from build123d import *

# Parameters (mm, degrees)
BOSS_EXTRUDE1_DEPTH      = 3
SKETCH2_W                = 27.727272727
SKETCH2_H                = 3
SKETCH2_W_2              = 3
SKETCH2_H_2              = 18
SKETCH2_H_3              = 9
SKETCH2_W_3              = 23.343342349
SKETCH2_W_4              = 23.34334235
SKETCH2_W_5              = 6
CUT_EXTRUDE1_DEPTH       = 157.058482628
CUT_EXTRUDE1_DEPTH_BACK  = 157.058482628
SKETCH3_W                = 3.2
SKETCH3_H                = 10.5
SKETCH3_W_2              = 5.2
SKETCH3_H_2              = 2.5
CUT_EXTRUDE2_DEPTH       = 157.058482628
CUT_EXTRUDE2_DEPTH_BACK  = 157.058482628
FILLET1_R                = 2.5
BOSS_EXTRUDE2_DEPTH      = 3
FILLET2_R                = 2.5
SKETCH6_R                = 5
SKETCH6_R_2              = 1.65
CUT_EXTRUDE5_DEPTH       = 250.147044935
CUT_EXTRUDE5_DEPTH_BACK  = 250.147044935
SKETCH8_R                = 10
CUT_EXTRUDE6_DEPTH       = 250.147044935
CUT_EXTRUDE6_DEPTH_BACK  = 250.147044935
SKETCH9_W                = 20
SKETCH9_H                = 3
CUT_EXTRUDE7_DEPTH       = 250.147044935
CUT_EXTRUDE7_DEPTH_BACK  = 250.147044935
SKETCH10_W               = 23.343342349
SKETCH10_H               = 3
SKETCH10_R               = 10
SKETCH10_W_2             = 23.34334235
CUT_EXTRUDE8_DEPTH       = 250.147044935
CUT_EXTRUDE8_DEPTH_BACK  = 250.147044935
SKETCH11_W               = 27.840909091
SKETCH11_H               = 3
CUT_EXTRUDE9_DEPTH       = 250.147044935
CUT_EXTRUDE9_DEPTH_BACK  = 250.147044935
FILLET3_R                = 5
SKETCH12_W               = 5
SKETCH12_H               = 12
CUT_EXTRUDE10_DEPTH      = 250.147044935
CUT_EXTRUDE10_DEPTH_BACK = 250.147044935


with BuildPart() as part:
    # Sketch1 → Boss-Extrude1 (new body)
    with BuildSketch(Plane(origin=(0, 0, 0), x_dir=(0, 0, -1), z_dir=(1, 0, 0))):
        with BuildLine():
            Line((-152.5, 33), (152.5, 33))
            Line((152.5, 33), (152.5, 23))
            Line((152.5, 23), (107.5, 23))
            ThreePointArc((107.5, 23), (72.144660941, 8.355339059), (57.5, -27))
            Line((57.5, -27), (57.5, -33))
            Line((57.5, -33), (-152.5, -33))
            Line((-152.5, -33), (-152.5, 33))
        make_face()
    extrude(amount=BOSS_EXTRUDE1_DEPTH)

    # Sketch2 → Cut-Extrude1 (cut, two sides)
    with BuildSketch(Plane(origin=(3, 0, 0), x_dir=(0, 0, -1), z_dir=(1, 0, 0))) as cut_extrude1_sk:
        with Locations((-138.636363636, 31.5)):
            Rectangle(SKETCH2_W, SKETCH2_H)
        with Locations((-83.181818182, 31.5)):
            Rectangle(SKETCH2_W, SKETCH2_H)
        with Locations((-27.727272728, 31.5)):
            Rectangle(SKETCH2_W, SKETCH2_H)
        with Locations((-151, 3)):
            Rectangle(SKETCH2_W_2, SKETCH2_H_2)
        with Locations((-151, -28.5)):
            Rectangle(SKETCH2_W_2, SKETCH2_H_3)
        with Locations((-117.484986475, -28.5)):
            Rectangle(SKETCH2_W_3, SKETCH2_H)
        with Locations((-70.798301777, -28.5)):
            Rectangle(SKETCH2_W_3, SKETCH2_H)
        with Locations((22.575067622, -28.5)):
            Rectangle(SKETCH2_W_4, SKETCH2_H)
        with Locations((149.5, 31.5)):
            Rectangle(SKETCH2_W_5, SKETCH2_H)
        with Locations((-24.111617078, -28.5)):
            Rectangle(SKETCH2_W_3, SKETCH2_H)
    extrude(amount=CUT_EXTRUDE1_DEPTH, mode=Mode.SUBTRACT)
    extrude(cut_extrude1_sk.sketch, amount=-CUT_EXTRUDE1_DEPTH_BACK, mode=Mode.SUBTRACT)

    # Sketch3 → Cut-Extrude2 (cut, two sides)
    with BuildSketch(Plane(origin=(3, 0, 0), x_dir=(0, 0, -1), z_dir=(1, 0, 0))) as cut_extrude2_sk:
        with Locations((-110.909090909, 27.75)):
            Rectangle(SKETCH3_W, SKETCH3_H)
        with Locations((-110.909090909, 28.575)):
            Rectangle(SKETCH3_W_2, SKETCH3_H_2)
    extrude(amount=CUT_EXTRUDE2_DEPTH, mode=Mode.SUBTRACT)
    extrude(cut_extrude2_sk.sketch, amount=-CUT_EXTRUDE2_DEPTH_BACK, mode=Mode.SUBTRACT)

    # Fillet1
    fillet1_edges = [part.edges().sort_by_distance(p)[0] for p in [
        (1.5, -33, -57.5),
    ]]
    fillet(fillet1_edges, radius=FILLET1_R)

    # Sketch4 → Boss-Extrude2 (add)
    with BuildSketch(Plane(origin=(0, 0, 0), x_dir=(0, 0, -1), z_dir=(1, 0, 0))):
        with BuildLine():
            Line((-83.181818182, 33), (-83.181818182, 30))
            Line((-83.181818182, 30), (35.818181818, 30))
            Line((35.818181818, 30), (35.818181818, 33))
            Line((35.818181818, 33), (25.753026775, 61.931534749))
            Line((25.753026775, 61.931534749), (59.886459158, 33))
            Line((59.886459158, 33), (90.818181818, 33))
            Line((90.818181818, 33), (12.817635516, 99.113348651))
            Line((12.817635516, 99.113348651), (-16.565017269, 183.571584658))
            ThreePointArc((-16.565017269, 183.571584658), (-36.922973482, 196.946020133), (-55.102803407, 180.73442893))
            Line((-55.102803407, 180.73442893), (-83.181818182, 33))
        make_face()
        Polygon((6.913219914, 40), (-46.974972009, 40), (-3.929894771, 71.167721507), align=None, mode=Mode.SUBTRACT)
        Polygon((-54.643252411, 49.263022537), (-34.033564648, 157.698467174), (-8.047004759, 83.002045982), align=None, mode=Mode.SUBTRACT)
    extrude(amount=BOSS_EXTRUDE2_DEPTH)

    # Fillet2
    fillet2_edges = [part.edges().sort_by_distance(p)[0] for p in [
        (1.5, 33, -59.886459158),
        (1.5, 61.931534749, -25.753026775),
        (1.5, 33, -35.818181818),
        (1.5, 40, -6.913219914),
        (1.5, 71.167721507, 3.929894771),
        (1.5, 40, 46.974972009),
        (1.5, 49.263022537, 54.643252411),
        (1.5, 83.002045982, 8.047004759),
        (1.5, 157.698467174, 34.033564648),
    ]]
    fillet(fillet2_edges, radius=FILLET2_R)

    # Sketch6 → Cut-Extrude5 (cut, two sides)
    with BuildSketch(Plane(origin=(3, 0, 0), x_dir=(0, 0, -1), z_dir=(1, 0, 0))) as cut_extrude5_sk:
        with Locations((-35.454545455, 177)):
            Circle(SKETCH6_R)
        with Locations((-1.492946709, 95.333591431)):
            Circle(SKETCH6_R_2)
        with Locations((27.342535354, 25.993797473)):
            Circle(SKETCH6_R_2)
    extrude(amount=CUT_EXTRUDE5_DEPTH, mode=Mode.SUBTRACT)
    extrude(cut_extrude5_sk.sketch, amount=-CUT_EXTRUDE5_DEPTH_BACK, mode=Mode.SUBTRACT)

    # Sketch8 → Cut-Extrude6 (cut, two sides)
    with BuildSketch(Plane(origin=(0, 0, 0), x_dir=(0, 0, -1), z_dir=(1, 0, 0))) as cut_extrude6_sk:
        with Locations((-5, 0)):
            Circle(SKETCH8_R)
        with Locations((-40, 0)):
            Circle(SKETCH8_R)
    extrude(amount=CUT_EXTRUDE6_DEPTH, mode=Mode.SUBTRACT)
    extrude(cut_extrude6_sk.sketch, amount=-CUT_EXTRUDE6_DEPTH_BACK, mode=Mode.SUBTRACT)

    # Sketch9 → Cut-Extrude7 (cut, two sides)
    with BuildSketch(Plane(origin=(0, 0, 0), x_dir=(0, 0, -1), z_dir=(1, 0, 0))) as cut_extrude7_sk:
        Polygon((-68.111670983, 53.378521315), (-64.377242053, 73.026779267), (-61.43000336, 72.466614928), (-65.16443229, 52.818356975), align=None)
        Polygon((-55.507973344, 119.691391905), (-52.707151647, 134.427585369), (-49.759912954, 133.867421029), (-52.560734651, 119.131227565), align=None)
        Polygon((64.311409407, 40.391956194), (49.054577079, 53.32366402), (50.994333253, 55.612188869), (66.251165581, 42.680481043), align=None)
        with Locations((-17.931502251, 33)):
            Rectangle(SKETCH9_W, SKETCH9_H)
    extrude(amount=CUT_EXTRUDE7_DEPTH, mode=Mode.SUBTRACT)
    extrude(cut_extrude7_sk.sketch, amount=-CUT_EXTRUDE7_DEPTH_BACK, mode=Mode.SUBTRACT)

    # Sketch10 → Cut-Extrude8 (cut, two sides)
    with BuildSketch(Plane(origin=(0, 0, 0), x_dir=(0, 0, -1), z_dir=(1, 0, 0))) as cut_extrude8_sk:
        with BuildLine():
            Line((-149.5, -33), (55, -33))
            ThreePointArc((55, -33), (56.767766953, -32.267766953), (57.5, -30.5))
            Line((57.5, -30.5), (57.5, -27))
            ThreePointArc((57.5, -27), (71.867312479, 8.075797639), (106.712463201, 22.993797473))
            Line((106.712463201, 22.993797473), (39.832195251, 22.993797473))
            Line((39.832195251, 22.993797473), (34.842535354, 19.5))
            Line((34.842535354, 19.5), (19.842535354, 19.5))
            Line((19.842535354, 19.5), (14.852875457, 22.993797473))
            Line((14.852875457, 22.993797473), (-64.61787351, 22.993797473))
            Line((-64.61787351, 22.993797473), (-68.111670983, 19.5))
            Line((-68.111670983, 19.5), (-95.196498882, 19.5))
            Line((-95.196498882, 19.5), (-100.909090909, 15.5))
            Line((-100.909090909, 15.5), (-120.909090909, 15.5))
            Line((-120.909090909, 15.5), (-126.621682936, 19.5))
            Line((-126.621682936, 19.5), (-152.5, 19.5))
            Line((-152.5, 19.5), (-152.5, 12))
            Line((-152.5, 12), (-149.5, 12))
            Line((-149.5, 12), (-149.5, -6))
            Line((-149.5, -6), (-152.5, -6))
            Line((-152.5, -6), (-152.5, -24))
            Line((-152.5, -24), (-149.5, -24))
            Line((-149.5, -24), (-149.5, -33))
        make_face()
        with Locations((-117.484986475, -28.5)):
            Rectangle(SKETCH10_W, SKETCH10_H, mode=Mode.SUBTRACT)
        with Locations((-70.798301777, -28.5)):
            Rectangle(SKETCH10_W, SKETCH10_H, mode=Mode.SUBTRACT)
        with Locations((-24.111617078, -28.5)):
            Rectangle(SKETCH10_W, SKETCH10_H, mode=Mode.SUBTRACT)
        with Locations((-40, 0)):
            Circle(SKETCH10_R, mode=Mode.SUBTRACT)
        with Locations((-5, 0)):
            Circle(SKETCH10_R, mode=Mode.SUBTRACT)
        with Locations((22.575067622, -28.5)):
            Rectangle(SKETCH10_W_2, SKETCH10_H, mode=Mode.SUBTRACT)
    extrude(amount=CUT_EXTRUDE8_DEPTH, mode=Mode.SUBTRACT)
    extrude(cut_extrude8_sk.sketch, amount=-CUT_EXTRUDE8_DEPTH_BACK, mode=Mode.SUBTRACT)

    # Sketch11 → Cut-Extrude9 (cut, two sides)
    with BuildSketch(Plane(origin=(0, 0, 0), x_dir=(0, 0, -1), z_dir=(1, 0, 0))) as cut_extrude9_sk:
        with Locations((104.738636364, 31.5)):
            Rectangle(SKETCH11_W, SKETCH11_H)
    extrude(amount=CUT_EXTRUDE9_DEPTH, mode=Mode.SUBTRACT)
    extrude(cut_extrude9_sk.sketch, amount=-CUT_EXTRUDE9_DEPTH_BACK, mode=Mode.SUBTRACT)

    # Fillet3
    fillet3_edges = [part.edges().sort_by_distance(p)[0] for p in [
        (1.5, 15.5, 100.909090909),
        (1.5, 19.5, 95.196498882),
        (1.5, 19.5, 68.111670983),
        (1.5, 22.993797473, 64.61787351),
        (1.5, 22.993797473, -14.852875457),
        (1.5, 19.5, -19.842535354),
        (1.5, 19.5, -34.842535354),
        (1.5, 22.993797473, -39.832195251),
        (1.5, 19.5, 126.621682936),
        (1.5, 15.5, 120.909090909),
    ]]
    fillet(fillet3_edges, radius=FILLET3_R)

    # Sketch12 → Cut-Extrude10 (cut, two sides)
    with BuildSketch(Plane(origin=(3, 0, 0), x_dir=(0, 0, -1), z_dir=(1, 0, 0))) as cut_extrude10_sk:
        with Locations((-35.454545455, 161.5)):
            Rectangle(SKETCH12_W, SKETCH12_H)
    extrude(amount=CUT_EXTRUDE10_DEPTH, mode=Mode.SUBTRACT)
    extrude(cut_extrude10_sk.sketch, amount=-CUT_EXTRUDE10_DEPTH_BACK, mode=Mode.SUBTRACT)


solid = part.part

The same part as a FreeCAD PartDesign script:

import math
import FreeCAD as App
import Part
import Sketcher
from FreeCAD import Vector
Q = App.Units.Quantity


def edges_at(feature, points):
    """Names of the edges that pass closest to the given points."""
    edges = feature.Shape.Edges
    near = lambda p: min(range(len(edges)), key=lambda i: edges[i].distToShape(Part.Vertex(*p))[0])
    return sorted({f"Edge{near(p) + 1}" for p in points})

doc = App.newDocument("Part")
params = doc.addObject("Spreadsheet::Sheet", "Params")
for row, (alias, value) in enumerate([
    ("sketch1_radius", "50 mm"),
    ("sketch1_width", "66 mm"),
    ("sketch1_width2", "6 mm"),
    ("sketch1_height", "305 mm"),
    ("sketch1_height2", "210 mm"),
    ("pad1_length", "3 mm"),
    ("sketch2_width", "3 mm"),
    ("sketch2_width2", "18 mm"),
    ("sketch2_width3", "9 mm"),
    ("sketch2_height", "6 mm"),
    ("sketch3_height", "1 mm"),
    ("sketch3_width", "2.5 mm"),
    ("sketch3_height2", "3.2 mm"),
    ("fillet_radius", "2.5 mm"),
    ("sketch4_radius", "20 mm"),
    ("sketch4_width", "3 mm"),
    ("sketch4_height", "119 mm"),
    ("sketch4_length", "33 mm"),
    ("pad2_length", "3 mm"),
    ("fillet2_radius", "2.5 mm"),
    ("sketch5_diameter", "10 mm"),
    ("sketch5_diameter2", "3.3 mm"),
    ("sketch6_diameter", "20 mm"),
    ("sketch7_width", "3 mm"),
    ("sketch7_height", "20 mm"),
    ("sketch7_length", "20 mm"),
    ("sketch7_length2", "3 mm"),
    ("sketch7_length3", "15 mm"),
    ("sketch8_diameter", "20 mm"),
    ("sketch8_radius", "50 mm"),
    ("sketch8_radius2", "2.5 mm"),
    ("sketch8_width", "18 mm"),
    ("sketch8_width2", "9 mm"),
    ("sketch9_width", "3 mm"),
    ("fillet3_radius", "5 mm"),
    ("sketch10_width", "12 mm"),
    ("sketch10_height", "5 mm"),
], start=1):
    params.set(f"A{row}", alias)
    params.set(f"B{row}", "=" + value)
    params.setAlias(f"B{row}", alias)

body = doc.addObject("PartDesign::Body", "Body")

sketch1 = body.newObject("Sketcher::SketchObject", "Sketch")
sketch1.AttachmentSupport = (doc.getObject("YZ_Plane"), [""])
sketch1.MapMode = "FlatFace"
sketch1.addGeometry([
    Part.LineSegment(Vector(33, -152.5, 0), Vector(33, 152.5, 0)),
    Part.LineSegment(Vector(33, 152.5, 0), Vector(-33, 152.5, 0)),
    Part.LineSegment(Vector(-33, 152.5, 0), Vector(-33, -57.5, 0)),
    Part.LineSegment(Vector(-33, -57.5, 0), Vector(-27, -57.5, 0)),
    Part.ArcOfCircle(Part.Circle(Vector(-27, -107.5, 0), Vector(0, 0, 1), 50), math.radians(0), math.radians(90)),
    Part.LineSegment(Vector(23, -107.5, 0), Vector(23, -152.5, 0)),
    Part.LineSegment(Vector(23, -152.5, 0), Vector(33, -152.5, 0)),
], False)
sketch1.addConstraint([
    Sketcher.Constraint("Coincident", 0, 2, 1, 1),
    Sketcher.Constraint("Coincident", 1, 2, 2, 1),
    Sketcher.Constraint("Coincident", 2, 2, 3, 1),
    Sketcher.Constraint("Tangent", 3, 2, 4, 2),
    Sketcher.Constraint("Tangent", 4, 1, 5, 1),
    Sketcher.Constraint("Coincident", 5, 2, 6, 1),
    Sketcher.Constraint("Coincident", 6, 2, 0, 1),
    Sketcher.Constraint("Vertical", 0),
    Sketcher.Constraint("Horizontal", 1),
    Sketcher.Constraint("Vertical", 2),
    Sketcher.Constraint("Horizontal", 3),
    Sketcher.Constraint("Vertical", 5),
    Sketcher.Constraint("Horizontal", 6),
    Sketcher.Constraint("Symmetric", 1, 2, 6, 2, -1, 1),
    Sketcher.Constraint("Radius", 4, 50.0),
    Sketcher.Constraint("DistanceX", 1, 2, 1, 1, 66.0),
    Sketcher.Constraint("DistanceX", 3, 1, 3, 2, 6.0),
    Sketcher.Constraint("DistanceY", 0, 1, 0, 2, 305.0),
    Sketcher.Constraint("DistanceY", 2, 2, 2, 1, 210.0),
])
sketch1.setExpression("Constraints[14]", "Params.sketch1_radius")
sketch1.setExpression("Constraints[15]", "Params.sketch1_width")
sketch1.setExpression("Constraints[16]", "Params.sketch1_width2")
sketch1.setExpression("Constraints[17]", "Params.sketch1_height")
sketch1.setExpression("Constraints[18]", "Params.sketch1_height2")
pad1 = body.newObject("PartDesign::Pad", "Pad")
pad1.Profile = sketch1
pad1.setExpression("Length", "Params.pad1_length")

sketch2 = body.newObject("Sketcher::SketchObject", "Sketch001")
sketch2.AttachmentSupport = (doc.getObject("YZ_Plane"), [""])
sketch2.MapMode = "FlatFace"
sketch2.AttachmentOffset = App.Placement(Vector(0, 0, 3), App.Rotation())
sketch2.addGeometry([
    Part.LineSegment(Vector(33, 152.5, 0), Vector(30, 152.5, 0)),
    Part.LineSegment(Vector(30, 152.5, 0), Vector(30, 124.772727, 0)),
    Part.LineSegment(Vector(30, 124.772727, 0), Vector(33, 124.772727, 0)),
    Part.LineSegment(Vector(33, 124.772727, 0), Vector(33, 152.5, 0)),
    Part.LineSegment(Vector(33, 97.045455, 0), Vector(30, 97.045455, 0)),
    Part.LineSegment(Vector(30, 97.045455, 0), Vector(30, 69.318182, 0)),
    Part.LineSegment(Vector(30, 69.318182, 0), Vector(33, 69.318182, 0)),
    Part.LineSegment(Vector(33, 69.318182, 0), Vector(33, 97.045455, 0)),
    Part.LineSegment(Vector(33, 41.590909, 0), Vector(30, 41.590909, 0)),
    Part.LineSegment(Vector(30, 41.590909, 0), Vector(30, 13.863636, 0)),
    Part.LineSegment(Vector(30, 13.863636, 0), Vector(33, 13.863636, 0)),
    Part.LineSegment(Vector(33, 13.863636, 0), Vector(33, 41.590909, 0)),
    Part.LineSegment(Vector(12, 152.5, 0), Vector(-6, 152.5, 0)),
    Part.LineSegment(Vector(-6, 152.5, 0), Vector(-6, 149.5, 0)),
    Part.LineSegment(Vector(-6, 149.5, 0), Vector(12, 149.5, 0)),
    Part.LineSegment(Vector(12, 149.5, 0), Vector(12, 152.5, 0)),
    Part.LineSegment(Vector(-24, 152.5, 0), Vector(-33, 152.5, 0)),
    Part.LineSegment(Vector(-33, 152.5, 0), Vector(-33, 149.5, 0)),
    Part.LineSegment(Vector(-33, 149.5, 0), Vector(-24, 149.5, 0)),
    Part.LineSegment(Vector(-24, 149.5, 0), Vector(-24, 152.5, 0)),
    Part.LineSegment(Vector(-27, 129.156658, 0), Vector(-30, 129.156658, 0)),
    Part.LineSegment(Vector(-30, 129.156658, 0), Vector(-30, 105.813315, 0)),
    Part.LineSegment(Vector(-30, 105.813315, 0), Vector(-27, 105.813315, 0)),
    Part.LineSegment(Vector(-27, 105.813315, 0), Vector(-27, 129.156658, 0)),
    Part.LineSegment(Vector(-27, 82.469973, 0), Vector(-30, 82.469973, 0)),
    Part.LineSegment(Vector(-30, 82.469973, 0), Vector(-30, 59.126631, 0)),
    Part.LineSegment(Vector(-30, 59.126631, 0), Vector(-27, 59.126631, 0)),
    Part.LineSegment(Vector(-27, 59.126631, 0), Vector(-27, 82.469973, 0)),
    Part.LineSegment(Vector(-27, -10.903396, 0), Vector(-30, -10.903396, 0)),
    Part.LineSegment(Vector(-30, -10.903396, 0), Vector(-30, -34.246739, 0)),
    Part.LineSegment(Vector(-30, -34.246739, 0), Vector(-27, -34.246739, 0)),
    Part.LineSegment(Vector(-27, -34.246739, 0), Vector(-27, -10.903396, 0)),
    Part.LineSegment(Vector(33, -146.5, 0), Vector(30, -146.5, 0)),
    Part.LineSegment(Vector(30, -146.5, 0), Vector(30, -152.5, 0)),
    Part.LineSegment(Vector(30, -152.5, 0), Vector(33, -152.5, 0)),
    Part.LineSegment(Vector(33, -152.5, 0), Vector(33, -146.5, 0)),
    Part.LineSegment(Vector(-27, 35.783288, 0), Vector(-30, 35.783288, 0)),
    Part.LineSegment(Vector(-30, 35.783288, 0), Vector(-30, 12.439946, 0)),
    Part.LineSegment(Vector(-30, 12.439946, 0), Vector(-27, 12.439946, 0)),
    Part.LineSegment(Vector(-27, 12.439946, 0), Vector(-27, 35.783288, 0)),
], False)
sketch2.addConstraint([
    Sketcher.Constraint("Coincident", 0, 2, 1, 1),
    Sketcher.Constraint("Coincident", 1, 2, 2, 1),
    Sketcher.Constraint("Coincident", 2, 2, 3, 1),
    Sketcher.Constraint("Coincident", 3, 2, 0, 1),
    Sketcher.Constraint("Coincident", 4, 2, 5, 1),
    Sketcher.Constraint("Coincident", 5, 2, 6, 1),
    Sketcher.Constraint("Coincident", 6, 2, 7, 1),
    Sketcher.Constraint("Coincident", 7, 2, 4, 1),
    Sketcher.Constraint("Coincident", 8, 2, 9, 1),
    Sketcher.Constraint("Coincident", 9, 2, 10, 1),
    Sketcher.Constraint("Coincident", 10, 2, 11, 1),
    Sketcher.Constraint("Coincident", 11, 2, 8, 1),
    Sketcher.Constraint("Coincident", 12, 2, 13, 1),
    Sketcher.Constraint("Coincident", 13, 2, 14, 1),
    Sketcher.Constraint("Coincident", 14, 2, 15, 1),
    Sketcher.Constraint("Coincident", 15, 2, 12, 1),
    Sketcher.Constraint("Coincident", 16, 2, 17, 1),
    Sketcher.Constraint("Coincident", 17, 2, 18, 1),
    Sketcher.Constraint("Coincident", 18, 2, 19, 1),
    Sketcher.Constraint("Coincident", 19, 2, 16, 1),
    Sketcher.Constraint("Coincident", 20, 2, 21, 1),
    Sketcher.Constraint("Coincident", 21, 2, 22, 1),
    Sketcher.Constraint("Coincident", 22, 2, 23, 1),
    Sketcher.Constraint("Coincident", 23, 2, 20, 1),
    Sketcher.Constraint("Coincident", 24, 2, 25, 1),
    Sketcher.Constraint("Coincident", 25, 2, 26, 1),
    Sketcher.Constraint("Coincident", 26, 2, 27, 1),
    Sketcher.Constraint("Coincident", 27, 2, 24, 1),
    Sketcher.Constraint("Coincident", 28, 2, 29, 1),
    Sketcher.Constraint("Coincident", 29, 2, 30, 1),
    Sketcher.Constraint("Coincident", 30, 2, 31, 1),
    Sketcher.Constraint("Coincident", 31, 2, 28, 1),
    Sketcher.Constraint("Coincident", 32, 2, 33, 1),
    Sketcher.Constraint("Coincident", 33, 2, 34, 1),
    Sketcher.Constraint("Coincident", 34, 2, 35, 1),
    Sketcher.Constraint("Coincident", 35, 2, 32, 1),
    Sketcher.Constraint("Coincident", 36, 2, 37, 1),
    Sketcher.Constraint("Coincident", 37, 2, 38, 1),
    Sketcher.Constraint("Coincident", 38, 2, 39, 1),
    Sketcher.Constraint("Coincident", 39, 2, 36, 1),
    Sketcher.Constraint("Horizontal", 0),
    Sketcher.Constraint("Vertical", 1),
    Sketcher.Constraint("Horizontal", 2),
    Sketcher.Constraint("Vertical", 3),
    Sketcher.Constraint("Horizontal", 4),
    Sketcher.Constraint("Vertical", 5),
    Sketcher.Constraint("Horizontal", 6),
    Sketcher.Constraint("Vertical", 7),
    Sketcher.Constraint("Horizontal", 8),
    Sketcher.Constraint("Vertical", 9),
    Sketcher.Constraint("Horizontal", 10),
    Sketcher.Constraint("Vertical", 11),
    Sketcher.Constraint("Horizontal", 12),
    Sketcher.Constraint("Vertical", 13),
    Sketcher.Constraint("Horizontal", 14),
    Sketcher.Constraint("Vertical", 15),
    Sketcher.Constraint("Horizontal", 16),
    Sketcher.Constraint("Vertical", 17),
    Sketcher.Constraint("Horizontal", 18),
    Sketcher.Constraint("Vertical", 19),
    Sketcher.Constraint("Horizontal", 20),
    Sketcher.Constraint("Vertical", 21),
    Sketcher.Constraint("Horizontal", 22),
    Sketcher.Constraint("Vertical", 23),
    Sketcher.Constraint("Horizontal", 24),
    Sketcher.Constraint("Vertical", 25),
    Sketcher.Constraint("Horizontal", 26),
    Sketcher.Constraint("Vertical", 27),
    Sketcher.Constraint("Horizontal", 28),
    Sketcher.Constraint("Vertical", 29),
    Sketcher.Constraint("Horizontal", 30),
    Sketcher.Constraint("Vertical", 31),
    Sketcher.Constraint("Horizontal", 32),
    Sketcher.Constraint("Vertical", 33),
    Sketcher.Constraint("Horizontal", 34),
    Sketcher.Constraint("Vertical", 35),
    Sketcher.Constraint("Horizontal", 36),
    Sketcher.Constraint("Vertical", 37),
    Sketcher.Constraint("Horizontal", 38),
    Sketcher.Constraint("Vertical", 39),
    Sketcher.Constraint("Symmetric", 16, 2, 34, 2, -1, 1),
    Sketcher.Constraint("Symmetric", 3, 2, 16, 2, -2),
    Sketcher.Constraint("Horizontal", 3, 2, 12, 2),
    Sketcher.Constraint("Horizontal", 14, 2, 17, 2),
    Sketcher.Constraint("Vertical", 1, 2, 4, 2),
    Sketcher.Constraint("Vertical", 3, 2, 6, 2),
    Sketcher.Constraint("Vertical", 5, 2, 8, 2),
    Sketcher.Constraint("Vertical", 7, 2, 10, 2),
    Sketcher.Constraint("Vertical", 21, 2, 24, 2),
    Sketcher.Constraint("Vertical", 23, 2, 26, 2),
    Sketcher.Constraint("Vertical", 25, 2, 28, 2),
    Sketcher.Constraint("Vertical", 27, 2, 30, 2),
    Sketcher.Constraint("Vertical", 9, 2, 32, 2),
    Sketcher.Constraint("Vertical", 29, 2, 36, 2),
    Sketcher.Constraint("Vertical", 31, 2, 38, 2),
    Sketcher.Constraint("Equal", 10, 20),
    Sketcher.Constraint("Equal", 3, 5),
    Sketcher.Constraint("Equal", 7, 9),
    Sketcher.Constraint("Equal", 38, 13),
    Sketcher.Constraint("Equal", 23, 25),
    Sketcher.Constraint("Equal", 27, 29),
    Sketcher.Constraint("Equal", 31, 37),
    Sketcher.Constraint("DistanceX", 0, 2, 0, 1, 3.0),
    Sketcher.Constraint("DistanceX", 12, 2, 12, 1, 18.0),
    Sketcher.Constraint("DistanceX", 16, 2, 16, 1, 9.0),
    Sketcher.Constraint("DistanceY", 33, 2, 33, 1, 6.0),
    Sketcher.Constraint("DistanceX", -1, 1, 0, 2, 30.0),
    Sketcher.Constraint("DistanceX", 12, 2, -1, 1, 6.0),
    Sketcher.Constraint("DistanceX", 20, 2, -1, 1, 30.0),
    Sketcher.Constraint("DistanceY", -1, 1, 0, 2, 152.5),
    Sketcher.Constraint("DistanceY", 1, 2, 1, 1, 27.727273),
    Sketcher.Constraint("DistanceY", 21, 2, 21, 1, 23.343342),
    Sketcher.Constraint("DistanceY", -1, 1, 5, 2, 69.318182),
    Sketcher.Constraint("DistanceY", -1, 1, 8, 2, 41.590909),
    Sketcher.Constraint("DistanceY", -1, 1, 25, 2, 59.126631),
    Sketcher.Constraint("DistanceY", 29, 2, -1, 1, 34.246739),
    Sketcher.Constraint("DistanceY", -1, 1, 36, 2, 35.783288),
    Sketcher.Constraint("DistanceY", -1, 1, 20, 2, 129.156658),
])
sketch2.setExpression("Constraints[102]", "Params.sketch2_width")
sketch2.setExpression("Constraints[103]", "Params.sketch2_width2")
sketch2.setExpression("Constraints[104]", "Params.sketch2_width3")
sketch2.setExpression("Constraints[105]", "Params.sketch2_height")
pocket1 = body.newObject("PartDesign::Pocket", "Pocket")
pocket1.Profile = sketch2
pocket1.Type = "ThroughAll"
pocket1.Midplane = True

sketch3 = body.newObject("Sketcher::SketchObject", "Sketch002")
sketch3.AttachmentSupport = (doc.getObject("YZ_Plane"), [""])
sketch3.MapMode = "FlatFace"
sketch3.AttachmentOffset = App.Placement(Vector(0, 0, 3), App.Rotation())
sketch3.addGeometry([
    Part.LineSegment(Vector(27.325, 112.509091, 0), Vector(22.5, 112.509091, 0)),
    Part.LineSegment(Vector(22.5, 112.509091, 0), Vector(22.5, 109.309091, 0)),
    Part.LineSegment(Vector(22.5, 109.309091, 0), Vector(27.325, 109.309091, 0)),
    Part.LineSegment(Vector(27.325, 109.309091, 0), Vector(27.325, 108.309091, 0)),
    Part.LineSegment(Vector(27.325, 108.309091, 0), Vector(29.825, 108.309091, 0)),
    Part.LineSegment(Vector(29.825, 108.309091, 0), Vector(29.825, 109.309091, 0)),
    Part.LineSegment(Vector(29.825, 109.309091, 0), Vector(33, 109.309091, 0)),
    Part.LineSegment(Vector(33, 109.309091, 0), Vector(33, 112.509091, 0)),
    Part.LineSegment(Vector(33, 112.509091, 0), Vector(29.825, 112.509091, 0)),
    Part.LineSegment(Vector(29.825, 112.509091, 0), Vector(29.825, 113.509091, 0)),
    Part.LineSegment(Vector(29.825, 113.509091, 0), Vector(27.325, 113.509091, 0)),
    Part.LineSegment(Vector(27.325, 113.509091, 0), Vector(27.325, 112.509091, 0)),
], False)
sketch3.addConstraint([
    Sketcher.Constraint("Coincident", 0, 2, 1, 1),
    Sketcher.Constraint("Coincident", 1, 2, 2, 1),
    Sketcher.Constraint("Coincident", 2, 2, 3, 1),
    Sketcher.Constraint("Coincident", 3, 2, 4, 1),
    Sketcher.Constraint("Coincident", 4, 2, 5, 1),
    Sketcher.Constraint("Coincident", 5, 2, 6, 1),
    Sketcher.Constraint("Coincident", 6, 2, 7, 1),
    Sketcher.Constraint("Coincident", 7, 2, 8, 1),
    Sketcher.Constraint("Coincident", 8, 2, 9, 1),
    Sketcher.Constraint("Coincident", 9, 2, 10, 1),
    Sketcher.Constraint("Coincident", 10, 2, 11, 1),
    Sketcher.Constraint("Coincident", 11, 2, 0, 1),
    Sketcher.Constraint("Horizontal", 0),
    Sketcher.Constraint("Vertical", 1),
    Sketcher.Constraint("Horizontal", 2),
    Sketcher.Constraint("Vertical", 3),
    Sketcher.Constraint("Horizontal", 4),
    Sketcher.Constraint("Vertical", 5),
    Sketcher.Constraint("Horizontal", 6),
    Sketcher.Constraint("Vertical", 7),
    Sketcher.Constraint("Horizontal", 8),
    Sketcher.Constraint("Vertical", 9),
    Sketcher.Constraint("Horizontal", 10),
    Sketcher.Constraint("Vertical", 11),
    Sketcher.Constraint("Horizontal", 2, 2, 5, 2),
    Sketcher.Constraint("Horizontal", 0, 2, 7, 2),
    Sketcher.Constraint("Vertical", 5, 2, 8, 2),
    Sketcher.Constraint("Vertical", 3, 2, 10, 2),
    Sketcher.Constraint("Equal", 5, 9),
    Sketcher.Constraint("DistanceY", 3, 2, 3, 1, 1.0),
    Sketcher.Constraint("DistanceX", 4, 1, 4, 2, 2.5),
    Sketcher.Constraint("DistanceY", 1, 2, 1, 1, 3.2),
    Sketcher.Constraint("DistanceX", -1, 1, 6, 2, 33.0),
    Sketcher.Constraint("DistanceX", -1, 1, 0, 2, 22.5),
    Sketcher.Constraint("DistanceX", 0, 2, 0, 1, 4.825),
    Sketcher.Constraint("DistanceY", -1, 1, 0, 2, 112.509091),
])
sketch3.setExpression("Constraints[29]", "Params.sketch3_height")
sketch3.setExpression("Constraints[30]", "Params.sketch3_width")
sketch3.setExpression("Constraints[31]", "Params.sketch3_height2")
pocket2 = body.newObject("PartDesign::Pocket", "Pocket001")
pocket2.Profile = sketch3
pocket2.Type = "ThroughAll"
pocket2.Midplane = True
doc.recompute()

fillet = body.newObject("PartDesign::Fillet", "Fillet")
fillet.Base = (pocket2, edges_at(pocket2, [(1.5, -33, -57.5)]))
fillet.setExpression("Radius", "Params.fillet_radius")

sketch4 = body.newObject("Sketcher::SketchObject", "Sketch003")
sketch4.AttachmentSupport = (doc.getObject("YZ_Plane"), [""])
sketch4.MapMode = "FlatFace"
sketch4.addGeometry([
    Part.LineSegment(Vector(33, 83.181818, 0), Vector(30, 83.181818, 0)),
    Part.LineSegment(Vector(30, 83.181818, 0), Vector(30, -35.818182, 0)),
    Part.LineSegment(Vector(30, -35.818182, 0), Vector(33, -35.818182, 0)),
    Part.LineSegment(Vector(33, -35.818182, 0), Vector(61.931535, -25.753027, 0)),
    Part.LineSegment(Vector(61.931535, -25.753027, 0), Vector(33, -59.886459, 0)),
    Part.LineSegment(Vector(33, -59.886459, 0), Vector(33, -90.818182, 0)),
    Part.LineSegment(Vector(33, -90.818182, 0), Vector(99.113349, -12.817636, 0)),
    Part.LineSegment(Vector(99.113349, -12.817636, 0), Vector(183.571585, 16.565017, 0)),
    Part.ArcOfCircle(Part.Circle(Vector(177, 35.454545, 0), Vector(0, 0, 1), 20), math.radians(-70.817437), math.radians(79.238487)),
    Part.LineSegment(Vector(180.734429, 55.102803, 0), Vector(33, 83.181818, 0)),
    Part.LineSegment(Vector(71.167722, 3.929895, 0), Vector(40, -6.91322, 0)),
    Part.LineSegment(Vector(40, -6.91322, 0), Vector(40, 46.974972, 0)),
    Part.LineSegment(Vector(40, 46.974972, 0), Vector(71.167722, 3.929895, 0)),
    Part.LineSegment(Vector(83.002046, 8.047005, 0), Vector(49.263023, 54.643252, 0)),
    Part.LineSegment(Vector(49.263023, 54.643252, 0), Vector(157.698467, 34.033565, 0)),
    Part.LineSegment(Vector(157.698467, 34.033565, 0), Vector(83.002046, 8.047005, 0)),
], False)
sketch4.addConstraint([
    Sketcher.Constraint("Coincident", 0, 2, 1, 1),
    Sketcher.Constraint("Coincident", 1, 2, 2, 1),
    Sketcher.Constraint("Coincident", 2, 2, 3, 1),
    Sketcher.Constraint("Coincident", 3, 2, 4, 1),
    Sketcher.Constraint("Coincident", 4, 2, 5, 1),
    Sketcher.Constraint("Coincident", 5, 2, 6, 1),
    Sketcher.Constraint("Coincident", 6, 2, 7, 1),
    Sketcher.Constraint("Tangent", 7, 2, 8, 1),
    Sketcher.Constraint("Tangent", 8, 2, 9, 1),
    Sketcher.Constraint("Coincident", 9, 2, 0, 1),
    Sketcher.Constraint("Coincident", 10, 2, 11, 1),
    Sketcher.Constraint("Coincident", 11, 2, 12, 1),
    Sketcher.Constraint("Coincident", 12, 2, 10, 1),
    Sketcher.Constraint("Coincident", 13, 2, 14, 1),
    Sketcher.Constraint("Coincident", 14, 2, 15, 1),
    Sketcher.Constraint("Coincident", 15, 2, 13, 1),
    Sketcher.Constraint("Horizontal", 0),
    Sketcher.Constraint("Vertical", 1),
    Sketcher.Constraint("Horizontal", 2),
    Sketcher.Constraint("Vertical", 5),
    Sketcher.Constraint("Vertical", 11),
    Sketcher.Constraint("Parallel", 4, 6),
    Sketcher.Constraint("Parallel", 3, 7),
    Sketcher.Constraint("Parallel", 7, 10),
    Sketcher.Constraint("Parallel", 12, 13),
    Sketcher.Constraint("Parallel", 9, 14),
    Sketcher.Constraint("Parallel", 10, 15),
    Sketcher.Constraint("Vertical", 2, 2, 4, 2),
    Sketcher.Constraint("Vertical", 5, 2, 9, 2),
    Sketcher.Constraint("Radius", 8, 20.0),
    Sketcher.Constraint("DistanceX", 0, 2, 0, 1, 3.0),
    Sketcher.Constraint("DistanceY", 1, 2, 1, 1, 119.0),
    Sketcher.Constraint("Distance", 10, 33.0),
    Sketcher.Constraint("DistanceX", -1, 1, 8, 3, 177.0),
    Sketcher.Constraint("DistanceX", -1, 1, 0, 2, 30.0),
    Sketcher.Constraint("DistanceX", -1, 1, 10, 2, 40.0),
    Sketcher.Constraint("DistanceY", 5, 2, 2, 2, 55.0),
    Sketcher.Constraint("DistanceY", 3, 2, 11, 2, 72.727999),
    Sketcher.Constraint("DistanceY", 11, 1, 11, 2, 53.888192),
    Sketcher.Constraint("DistanceY", 2, 2, 7, 2, 52.383199),
    Sketcher.Constraint("DistanceX", 13, 2, 12, 2, 21.904699),
    Sketcher.Constraint("DistanceY", 6, 2, 14, 2, 46.8512),
    Sketcher.Constraint("Distance", 4, 44.74511),
    Sketcher.Constraint("Distance", 6, 102.249988),
    Sketcher.Constraint("Distance", 7, 89.423341),
    Sketcher.Constraint("Distance", 14, 110.37665),
    Sketcher.Constraint("DistanceY", -1, 1, 0, 2, 83.181818),
])
sketch4.setExpression("Constraints[29]", "Params.sketch4_radius")
sketch4.setExpression("Constraints[30]", "Params.sketch4_width")
sketch4.setExpression("Constraints[31]", "Params.sketch4_height")
sketch4.setExpression("Constraints[32]", "Params.sketch4_length")
pad2 = body.newObject("PartDesign::Pad", "Pad001")
pad2.Profile = sketch4
pad2.setExpression("Length", "Params.pad2_length")
doc.recompute()

fillet2 = body.newObject("PartDesign::Fillet", "Fillet001")
fillet2.Base = (pad2, edges_at(pad2, [
    (1.5, 33, -59.886),
    (1.5, 61.932, -25.753),
    (1.5, 33, -35.818),
    (1.5, 40, -6.913),
    (1.5, 71.168, 3.93),
    (1.5, 40, 46.975),
    (1.5, 49.263, 54.643),
    (1.5, 83.002, 8.047),
    (1.5, 157.698, 34.034),
]))
fillet2.setExpression("Radius", "Params.fillet2_radius")

sketch5 = body.newObject("Sketcher::SketchObject", "Sketch004")
sketch5.AttachmentSupport = (doc.getObject("YZ_Plane"), [""])
sketch5.MapMode = "FlatFace"
sketch5.AttachmentOffset = App.Placement(Vector(0, 0, 3), App.Rotation())
sketch5.addGeometry([
    Part.Circle(Vector(177, 35.454545, 0), Vector(0, 0, 1), 5),
    Part.Circle(Vector(95.333591, 1.492947, 0), Vector(0, 0, 1), 1.65),
    Part.Circle(Vector(25.993797, -27.342535, 0), Vector(0, 0, 1), 1.65),
], False)
sketch5.addConstraint([
    Sketcher.Constraint("Equal", 1, 2),
    Sketcher.Constraint("Diameter", 0, 10.0),
    Sketcher.Constraint("Diameter", 1, 3.3),
    Sketcher.Constraint("DistanceX", -1, 1, 0, 3, 177.0),
    Sketcher.Constraint("DistanceY", 1, 3, 0, 3, 33.961599),
    Sketcher.Constraint("DistanceX", -1, 1, 1, 3, 95.333591),
    Sketcher.Constraint("DistanceY", 2, 3, 0, 3, 62.797081),
    Sketcher.Constraint("DistanceY", -1, 1, 0, 3, 35.454545),
    Sketcher.Constraint("DistanceX", -1, 1, 2, 3, 25.993797),
])
sketch5.setExpression("Constraints[1]", "Params.sketch5_diameter")
sketch5.setExpression("Constraints[2]", "Params.sketch5_diameter2")
pocket3 = body.newObject("PartDesign::Pocket", "Pocket002")
pocket3.Profile = sketch5
pocket3.Type = "ThroughAll"
pocket3.Midplane = True

sketch6 = body.newObject("Sketcher::SketchObject", "Sketch005")
sketch6.AttachmentSupport = (doc.getObject("YZ_Plane"), [""])
sketch6.MapMode = "FlatFace"
sketch6.addGeometry([
    Part.Circle(Vector(0, 5, 0), Vector(0, 0, 1), 10),
    Part.Circle(Vector(0, 40, 0), Vector(0, 0, 1), 10),
], False)
sketch6.addConstraint([
    Sketcher.Constraint("Equal", 0, 1),
    Sketcher.Constraint("PointOnObject", 0, 3, -2),
    Sketcher.Constraint("PointOnObject", 1, 3, -2),
    Sketcher.Constraint("Diameter", 0, 20.0),
    Sketcher.Constraint("DistanceY", -1, 1, 0, 3, 5.0),
    Sketcher.Constraint("DistanceY", -1, 1, 1, 3, 40.0),
])
sketch6.setExpression("Constraints[3]", "Params.sketch6_diameter")
pocket4 = body.newObject("PartDesign::Pocket", "Pocket003")
pocket4.Profile = sketch6
pocket4.Type = "ThroughAll"
pocket4.Midplane = True

sketch7 = body.newObject("Sketcher::SketchObject", "Sketch006")
sketch7.AttachmentSupport = (doc.getObject("YZ_Plane"), [""])
sketch7.MapMode = "FlatFace"
sketch7.addGeometry([
    Part.LineSegment(Vector(73.026779, 64.377242, 0), Vector(53.378521, 68.111671, 0)),
    Part.LineSegment(Vector(53.378521, 68.111671, 0), Vector(52.818357, 65.164432, 0)),
    Part.LineSegment(Vector(52.818357, 65.164432, 0), Vector(72.466615, 61.430003, 0)),
    Part.LineSegment(Vector(72.466615, 61.430003, 0), Vector(73.026779, 64.377242, 0)),
    Part.LineSegment(Vector(134.427585, 52.707152, 0), Vector(119.691392, 55.507973, 0)),
    Part.LineSegment(Vector(119.691392, 55.507973, 0), Vector(119.131228, 52.560735, 0)),
    Part.LineSegment(Vector(119.131228, 52.560735, 0), Vector(133.867421, 49.759913, 0)),
    Part.LineSegment(Vector(133.867421, 49.759913, 0), Vector(134.427585, 52.707152, 0)),
    Part.LineSegment(Vector(53.323664, -49.054577, 0), Vector(40.391956, -64.311409, 0)),
    Part.LineSegment(Vector(40.391956, -64.311409, 0), Vector(42.680481, -66.251166, 0)),
    Part.LineSegment(Vector(42.680481, -66.251166, 0), Vector(55.612189, -50.994333, 0)),
    Part.LineSegment(Vector(55.612189, -50.994333, 0), Vector(53.323664, -49.054577, 0)),
    Part.LineSegment(Vector(34.5, 27.931502, 0), Vector(31.5, 27.931502, 0)),
    Part.LineSegment(Vector(31.5, 27.931502, 0), Vector(31.5, 7.931502, 0)),
    Part.LineSegment(Vector(31.5, 7.931502, 0), Vector(34.5, 7.931502, 0)),
    Part.LineSegment(Vector(34.5, 7.931502, 0), Vector(34.5, 27.931502, 0)),
], False)
sketch7.addConstraint([
    Sketcher.Constraint("Coincident", 0, 2, 1, 1),
    Sketcher.Constraint("Coincident", 1, 2, 2, 1),
    Sketcher.Constraint("Coincident", 2, 2, 3, 1),
    Sketcher.Constraint("Coincident", 3, 2, 0, 1),
    Sketcher.Constraint("Coincident", 4, 2, 5, 1),
    Sketcher.Constraint("Coincident", 5, 2, 6, 1),
    Sketcher.Constraint("Coincident", 6, 2, 7, 1),
    Sketcher.Constraint("Coincident", 7, 2, 4, 1),
    Sketcher.Constraint("Coincident", 8, 2, 9, 1),
    Sketcher.Constraint("Coincident", 9, 2, 10, 1),
    Sketcher.Constraint("Coincident", 10, 2, 11, 1),
    Sketcher.Constraint("Coincident", 11, 2, 8, 1),
    Sketcher.Constraint("Coincident", 12, 2, 13, 1),
    Sketcher.Constraint("Coincident", 13, 2, 14, 1),
    Sketcher.Constraint("Coincident", 14, 2, 15, 1),
    Sketcher.Constraint("Coincident", 15, 2, 12, 1),
    Sketcher.Constraint("Horizontal", 12),
    Sketcher.Constraint("Vertical", 13),
    Sketcher.Constraint("Horizontal", 14),
    Sketcher.Constraint("Vertical", 15),
    Sketcher.Constraint("Perpendicular", 0, 1),
    Sketcher.Constraint("Perpendicular", 1, 2),
    Sketcher.Constraint("Perpendicular", 2, 3),
    Sketcher.Constraint("Perpendicular", 3, 4),
    Sketcher.Constraint("Perpendicular", 4, 5),
    Sketcher.Constraint("Perpendicular", 5, 6),
    Sketcher.Constraint("Perpendicular", 6, 7),
    Sketcher.Constraint("Perpendicular", 8, 9),
    Sketcher.Constraint("Perpendicular", 9, 10),
    Sketcher.Constraint("Perpendicular", 10, 11),
    Sketcher.Constraint("Equal", 3, 5),
    Sketcher.Constraint("Equal", 2, 8),
    Sketcher.Constraint("Equal", 7, 9),
    Sketcher.Constraint("DistanceX", 12, 2, 12, 1, 3.0),
    Sketcher.Constraint("DistanceY", 13, 2, 13, 1, 20.0),
    Sketcher.Constraint("Distance", 0, 20.0),
    Sketcher.Constraint("Distance", 1, 3.0),
    Sketcher.Constraint("Distance", 4, 15.0),
    Sketcher.Constraint("DistanceX", -1, 1, 12, 2, 31.5),
    Sketcher.Constraint("DistanceX", 8, 2, 1, 2, 12.426401),
    Sketcher.Constraint("DistanceX", 9, 2, 3, 2, 30.346298),
    Sketcher.Constraint("DistanceY", 12, 2, 2, 2, 33.498501),
    Sketcher.Constraint("DistanceX", -1, 1, 0, 2, 53.378521),
    Sketcher.Constraint("DistanceY", -1, 1, 0, 2, 68.111671),
    Sketcher.Constraint("DistanceX", -1, 1, 3, 2, 73.026779),
    Sketcher.Constraint("DistanceX", -1, 1, 4, 2, 119.691392),
    Sketcher.Constraint("DistanceY", -1, 1, 7, 2, 52.707152),
    Sketcher.Constraint("DistanceY", 8, 2, -1, 1, 64.311409),
])
sketch7.setExpression("Constraints[33]", "Params.sketch7_width")
sketch7.setExpression("Constraints[34]", "Params.sketch7_height")
sketch7.setExpression("Constraints[35]", "Params.sketch7_length")
sketch7.setExpression("Constraints[36]", "Params.sketch7_length2")
sketch7.setExpression("Constraints[37]", "Params.sketch7_length3")
pocket5 = body.newObject("PartDesign::Pocket", "Pocket004")
pocket5.Profile = sketch7
pocket5.Type = "ThroughAll"
pocket5.Midplane = True

sketch8 = body.newObject("Sketcher::SketchObject", "Sketch007")
sketch8.AttachmentSupport = (doc.getObject("YZ_Plane"), [""])
sketch8.MapMode = "FlatFace"
sketch8.addGeometry([
    Part.LineSegment(Vector(-33, 149.5, 0), Vector(-33, -55, 0)),
    Part.ArcOfCircle(Part.Circle(Vector(-30.5, -55, 0), Vector(0, 0, 1), 2.5), math.radians(180), math.radians(270)),
    Part.LineSegment(Vector(-30.5, -57.5, 0), Vector(-27, -57.5, 0)),
    Part.ArcOfCircle(Part.Circle(Vector(-27, -107.5, 0), Vector(0, 0, 1), 50), math.radians(0.902488), math.radians(90)),
    Part.LineSegment(Vector(22.993797, -106.712463, 0), Vector(22.993797, -39.832195, 0)),
    Part.LineSegment(Vector(22.993797, -39.832195, 0), Vector(19.5, -34.842535, 0)),
    Part.LineSegment(Vector(19.5, -34.842535, 0), Vector(19.5, -19.842535, 0)),
    Part.LineSegment(Vector(19.5, -19.842535, 0), Vector(22.993797, -14.852875, 0)),
    Part.LineSegment(Vector(22.993797, -14.852875, 0), Vector(22.993797, 64.617874, 0)),
    Part.LineSegment(Vector(22.993797, 64.617874, 0), Vector(19.5, 68.111671, 0)),
    Part.LineSegment(Vector(19.5, 68.111671, 0), Vector(19.5, 95.196499, 0)),
    Part.LineSegment(Vector(19.5, 95.196499, 0), Vector(15.5, 100.909091, 0)),
    Part.LineSegment(Vector(15.5, 100.909091, 0), Vector(15.5, 120.909091, 0)),
    Part.LineSegment(Vector(15.5, 120.909091, 0), Vector(19.5, 126.621683, 0)),
    Part.LineSegment(Vector(19.5, 126.621683, 0), Vector(19.5, 152.5, 0)),
    Part.LineSegment(Vector(19.5, 152.5, 0), Vector(12, 152.5, 0)),
    Part.LineSegment(Vector(12, 152.5, 0), Vector(12, 149.5, 0)),
    Part.LineSegment(Vector(12, 149.5, 0), Vector(-6, 149.5, 0)),
    Part.LineSegment(Vector(-6, 149.5, 0), Vector(-6, 152.5, 0)),
    Part.LineSegment(Vector(-6, 152.5, 0), Vector(-24, 152.5, 0)),
    Part.LineSegment(Vector(-24, 152.5, 0), Vector(-24, 149.5, 0)),
    Part.LineSegment(Vector(-24, 149.5, 0), Vector(-33, 149.5, 0)),
    Part.LineSegment(Vector(-30, 105.813315, 0), Vector(-30, 129.156658, 0)),
    Part.LineSegment(Vector(-30, 129.156658, 0), Vector(-27, 129.156658, 0)),
    Part.LineSegment(Vector(-27, 129.156658, 0), Vector(-27, 105.813315, 0)),
    Part.LineSegment(Vector(-27, 105.813315, 0), Vector(-30, 105.813315, 0)),
    Part.LineSegment(Vector(-30, 59.126631, 0), Vector(-30, 82.469973, 0)),
    Part.LineSegment(Vector(-30, 82.469973, 0), Vector(-27, 82.469973, 0)),
    Part.LineSegment(Vector(-27, 82.469973, 0), Vector(-27, 59.126631, 0)),
    Part.LineSegment(Vector(-27, 59.126631, 0), Vector(-30, 59.126631, 0)),
    Part.LineSegment(Vector(-30, 12.439946, 0), Vector(-30, 35.783288, 0)),
    Part.LineSegment(Vector(-30, 35.783288, 0), Vector(-27, 35.783288, 0)),
    Part.LineSegment(Vector(-27, 35.783288, 0), Vector(-27, 12.439946, 0)),
    Part.LineSegment(Vector(-27, 12.439946, 0), Vector(-30, 12.439946, 0)),
    Part.LineSegment(Vector(-30, -34.246739, 0), Vector(-30, -10.903396, 0)),
    Part.LineSegment(Vector(-30, -10.903396, 0), Vector(-27, -10.903396, 0)),
    Part.LineSegment(Vector(-27, -10.903396, 0), Vector(-27, -34.246739, 0)),
    Part.LineSegment(Vector(-27, -34.246739, 0), Vector(-30, -34.246739, 0)),
    Part.Circle(Vector(0, 40, 0), Vector(0, 0, 1), 10),
    Part.Circle(Vector(0, 5, 0), Vector(0, 0, 1), 10),
], False)
sketch8.addConstraint([
    Sketcher.Constraint("Tangent", 0, 2, 1, 1),
    Sketcher.Constraint("Tangent", 1, 2, 2, 1),
    Sketcher.Constraint("Tangent", 2, 2, 3, 2),
    Sketcher.Constraint("Coincident", 3, 1, 4, 1),
    Sketcher.Constraint("Coincident", 4, 2, 5, 1),
    Sketcher.Constraint("Coincident", 5, 2, 6, 1),
    Sketcher.Constraint("Coincident", 6, 2, 7, 1),
    Sketcher.Constraint("Coincident", 7, 2, 8, 1),
    Sketcher.Constraint("Coincident", 8, 2, 9, 1),
    Sketcher.Constraint("Coincident", 9, 2, 10, 1),
    Sketcher.Constraint("Coincident", 10, 2, 11, 1),
    Sketcher.Constraint("Coincident", 11, 2, 12, 1),
    Sketcher.Constraint("Coincident", 12, 2, 13, 1),
    Sketcher.Constraint("Coincident", 13, 2, 14, 1),
    Sketcher.Constraint("Coincident", 14, 2, 15, 1),
    Sketcher.Constraint("Coincident", 15, 2, 16, 1),
    Sketcher.Constraint("Coincident", 16, 2, 17, 1),
    Sketcher.Constraint("Coincident", 17, 2, 18, 1),
    Sketcher.Constraint("Coincident", 18, 2, 19, 1),
    Sketcher.Constraint("Coincident", 19, 2, 20, 1),
    Sketcher.Constraint("Coincident", 20, 2, 21, 1),
    Sketcher.Constraint("Coincident", 21, 2, 0, 1),
    Sketcher.Constraint("Coincident", 22, 2, 23, 1),
    Sketcher.Constraint("Coincident", 23, 2, 24, 1),
    Sketcher.Constraint("Coincident", 24, 2, 25, 1),
    Sketcher.Constraint("Coincident", 25, 2, 22, 1),
    Sketcher.Constraint("Coincident", 26, 2, 27, 1),
    Sketcher.Constraint("Coincident", 27, 2, 28, 1),
    Sketcher.Constraint("Coincident", 28, 2, 29, 1),
    Sketcher.Constraint("Coincident", 29, 2, 26, 1),
    Sketcher.Constraint("Coincident", 30, 2, 31, 1),
    Sketcher.Constraint("Coincident", 31, 2, 32, 1),
    Sketcher.Constraint("Coincident", 32, 2, 33, 1),
    Sketcher.Constraint("Coincident", 33, 2, 30, 1),
    Sketcher.Constraint("Coincident", 34, 2, 35, 1),
    Sketcher.Constraint("Coincident", 35, 2, 36, 1),
    Sketcher.Constraint("Coincident", 36, 2, 37, 1),
    Sketcher.Constraint("Coincident", 37, 2, 34, 1),
    Sketcher.Constraint("Vertical", 0),
    Sketcher.Constraint("Horizontal", 2),
    Sketcher.Constraint("Vertical", 4),
    Sketcher.Constraint("Vertical", 6),
    Sketcher.Constraint("Vertical", 8),
    Sketcher.Constraint("Vertical", 10),
    Sketcher.Constraint("Vertical", 12),
    Sketcher.Constraint("Vertical", 14),
    Sketcher.Constraint("Horizontal", 15),
    Sketcher.Constraint("Vertical", 16),
    Sketcher.Constraint("Horizontal", 17),
    Sketcher.Constraint("Vertical", 18),
    Sketcher.Constraint("Horizontal", 19),
    Sketcher.Constraint("Vertical", 20),
    Sketcher.Constraint("Horizontal", 21),
    Sketcher.Constraint("Vertical", 22),
    Sketcher.Constraint("Horizontal", 23),
    Sketcher.Constraint("Vertical", 24),
    Sketcher.Constraint("Horizontal", 25),
    Sketcher.Constraint("Vertical", 26),
    Sketcher.Constraint("Horizontal", 27),
    Sketcher.Constraint("Vertical", 28),
    Sketcher.Constraint("Horizontal", 29),
    Sketcher.Constraint("Vertical", 30),
    Sketcher.Constraint("Horizontal", 31),
    Sketcher.Constraint("Vertical", 32),
    Sketcher.Constraint("Horizontal", 33),
    Sketcher.Constraint("Vertical", 34),
    Sketcher.Constraint("Horizontal", 35),
    Sketcher.Constraint("Vertical", 36),
    Sketcher.Constraint("Horizontal", 37),
    Sketcher.Constraint("Equal", 38, 39),
    Sketcher.Constraint("PointOnObject", 38, 3, -2),
    Sketcher.Constraint("PointOnObject", 39, 3, -2),
    Sketcher.Constraint("Parallel", 5, 11),
    Sketcher.Constraint("Parallel", 7, 13),
    Sketcher.Constraint("Horizontal", 15, 2, 18, 2),
    Sketcher.Constraint("Horizontal", 17, 2, 20, 2),
    Sketcher.Constraint("Vertical", 4, 2, 7, 2),
    Sketcher.Constraint("Vertical", 6, 2, 9, 2),
    Sketcher.Constraint("Vertical", 10, 2, 13, 2),
    Sketcher.Constraint("Vertical", 2, 2, 23, 2),
    Sketcher.Constraint("Vertical", 25, 2, 26, 2),
    Sketcher.Constraint("Vertical", 24, 2, 27, 2),
    Sketcher.Constraint("Vertical", 29, 2, 30, 2),
    Sketcher.Constraint("Vertical", 28, 2, 31, 2),
    Sketcher.Constraint("Vertical", 33, 2, 34, 2),
    Sketcher.Constraint("Vertical", 32, 2, 35, 2),
    Sketcher.Constraint("Equal", 17, 19),
    Sketcher.Constraint("Equal", 37, 16),
    Sketcher.Constraint("Equal", 24, 26),
    Sketcher.Constraint("Equal", 28, 30),
    Sketcher.Constraint("Equal", 32, 34),
    Sketcher.Constraint("Equal", 5, 7),
    Sketcher.Constraint("Diameter", 38, 20.0),
    Sketcher.Constraint("Radius", 3, 50.0),
    Sketcher.Constraint("Radius", 1, 2.5),
    Sketcher.Constraint("DistanceX", 17, 2, 17, 1, 18.0),
    Sketcher.Constraint("DistanceX", 21, 2, 21, 1, 9.0),
    Sketcher.Constraint("DistanceX", 23, 1, 23, 2, 3.0),
    Sketcher.Constraint("DistanceY", 6, 1, 6, 2, 15.0),
    Sketcher.Constraint("DistanceY", 12, 1, 12, 2, 20.0),
    Sketcher.Constraint("Angle", 5, Q("125 deg")),
    Sketcher.Constraint("Angle", 9, Q("135 deg")),
    Sketcher.Constraint("DistanceX", 2, 1, 2, 2, 3.5),
    Sketcher.Constraint("DistanceX", 15, 2, 15, 1, 7.5),
    Sketcher.Constraint("DistanceY", 0, 2, 0, 1, 204.5),
    Sketcher.Constraint("DistanceY", 1, 3, -1, 1, 55.0),
    Sketcher.Constraint("DistanceX", 3, 3, -1, 1, 27.0),
    Sketcher.Constraint("DistanceY", -1, 1, 38, 3, 40.0),
    Sketcher.Constraint("DistanceY", -1, 1, 39, 3, 5.0),
    Sketcher.Constraint("DistanceX", 11, 2, 10, 2, 4.0),
    Sketcher.Constraint("DistanceY", 8, 1, 8, 2, 79.470749),
    Sketcher.Constraint("DistanceY", -1, 1, 10, 2, 95.196499),
    Sketcher.Constraint("Distance", 5, 6.09125),
    Sketcher.Constraint("DistanceY", 4, 1, 4, 2, 66.880268),
    Sketcher.Constraint("DistanceY", 22, 1, 22, 2, 23.343342),
    Sketcher.Constraint("DistanceY", -1, 1, 28, 2, 59.126631),
    Sketcher.Constraint("DistanceY", -1, 1, 30, 2, 35.783288),
    Sketcher.Constraint("DistanceY", 36, 2, -1, 1, 34.246739),
    Sketcher.Constraint("DistanceY", -1, 1, 22, 2, 129.156658),
])
sketch8.setExpression("Constraints[92]", "Params.sketch8_diameter")
sketch8.setExpression("Constraints[93]", "Params.sketch8_radius")
sketch8.setExpression("Constraints[94]", "Params.sketch8_radius2")
sketch8.setExpression("Constraints[95]", "Params.sketch8_width")
sketch8.setExpression("Constraints[96]", "Params.sketch8_width2")
pocket6 = body.newObject("PartDesign::Pocket", "Pocket005")
pocket6.Profile = sketch8
pocket6.Type = "ThroughAll"
pocket6.Midplane = True

sketch9 = body.newObject("Sketcher::SketchObject", "Sketch008")
sketch9.AttachmentSupport = (doc.getObject("YZ_Plane"), [""])
sketch9.MapMode = "FlatFace"
sketch9.addGeometry([
    Part.LineSegment(Vector(33, -90.818182, 0), Vector(30, -90.818182, 0)),
    Part.LineSegment(Vector(30, -90.818182, 0), Vector(30, -118.659091, 0)),
    Part.LineSegment(Vector(30, -118.659091, 0), Vector(33, -118.659091, 0)),
    Part.LineSegment(Vector(33, -118.659091, 0), Vector(33, -90.818182, 0)),
], False)
sketch9.addConstraint([
    Sketcher.Constraint("Coincident", 0, 2, 1, 1),
    Sketcher.Constraint("Coincident", 1, 2, 2, 1),
    Sketcher.Constraint("Coincident", 2, 2, 3, 1),
    Sketcher.Constraint("Coincident", 3, 2, 0, 1),
    Sketcher.Constraint("Horizontal", 0),
    Sketcher.Constraint("Vertical", 1),
    Sketcher.Constraint("Horizontal", 2),
    Sketcher.Constraint("Vertical", 3),
    Sketcher.Constraint("DistanceX", 0, 2, 0, 1, 3.0),
    Sketcher.Constraint("DistanceX", -1, 1, 0, 2, 30.0),
    Sketcher.Constraint("DistanceY", 1, 2, 1, 1, 27.840909),
    Sketcher.Constraint("DistanceY", 0, 2, -1, 1, 90.818182),
])
sketch9.setExpression("Constraints[8]", "Params.sketch9_width")
pocket7 = body.newObject("PartDesign::Pocket", "Pocket006")
pocket7.Profile = sketch9
pocket7.Type = "ThroughAll"
pocket7.Midplane = True
doc.recompute()

fillet3 = body.newObject("PartDesign::Fillet", "Fillet002")
fillet3.Base = (pocket7, edges_at(pocket7, [
    (1.5, 15.5, 100.909),
    (1.5, 19.5, 95.196),
    (1.5, 19.5, 68.112),
    (1.5, 22.994, 64.618),
    (1.5, 22.994, -14.853),
    (1.5, 19.5, -19.843),
    (1.5, 19.5, -34.843),
    (1.5, 22.994, -39.832),
    (1.5, 19.5, 126.622),
    (1.5, 15.5, 120.909),
]))
fillet3.setExpression("Radius", "Params.fillet3_radius")

sketch10 = body.newObject("Sketcher::SketchObject", "Sketch009")
sketch10.AttachmentSupport = (doc.getObject("YZ_Plane"), [""])
sketch10.MapMode = "FlatFace"
sketch10.AttachmentOffset = App.Placement(Vector(0, 0, 3), App.Rotation())
sketch10.addGeometry([
    Part.LineSegment(Vector(167.5, 37.954545, 0), Vector(155.5, 37.954545, 0)),
    Part.LineSegment(Vector(155.5, 37.954545, 0), Vector(155.5, 32.954545, 0)),
    Part.LineSegment(Vector(155.5, 32.954545, 0), Vector(167.5, 32.954545, 0)),
    Part.LineSegment(Vector(167.5, 32.954545, 0), Vector(167.5, 37.954545, 0)),
], False)
sketch10.addConstraint([
    Sketcher.Constraint("Coincident", 0, 2, 1, 1),
    Sketcher.Constraint("Coincident", 1, 2, 2, 1),
    Sketcher.Constraint("Coincident", 2, 2, 3, 1),
    Sketcher.Constraint("Coincident", 3, 2, 0, 1),
    Sketcher.Constraint("Horizontal", 0),
    Sketcher.Constraint("Vertical", 1),
    Sketcher.Constraint("Horizontal", 2),
    Sketcher.Constraint("Vertical", 3),
    Sketcher.Constraint("DistanceX", 0, 2, 0, 1, 12.0),
    Sketcher.Constraint("DistanceY", 1, 2, 1, 1, 5.0),
    Sketcher.Constraint("DistanceX", -1, 1, 0, 2, 155.5),
    Sketcher.Constraint("DistanceY", -1, 1, 0, 2, 37.954545),
])
sketch10.setExpression("Constraints[8]", "Params.sketch10_width")
sketch10.setExpression("Constraints[9]", "Params.sketch10_height")
pocket8 = body.newObject("PartDesign::Pocket", "Pocket007")
pocket8.Profile = sketch10
pocket8.Type = "ThroughAll"
pocket8.Midplane = True

doc.recompute()
